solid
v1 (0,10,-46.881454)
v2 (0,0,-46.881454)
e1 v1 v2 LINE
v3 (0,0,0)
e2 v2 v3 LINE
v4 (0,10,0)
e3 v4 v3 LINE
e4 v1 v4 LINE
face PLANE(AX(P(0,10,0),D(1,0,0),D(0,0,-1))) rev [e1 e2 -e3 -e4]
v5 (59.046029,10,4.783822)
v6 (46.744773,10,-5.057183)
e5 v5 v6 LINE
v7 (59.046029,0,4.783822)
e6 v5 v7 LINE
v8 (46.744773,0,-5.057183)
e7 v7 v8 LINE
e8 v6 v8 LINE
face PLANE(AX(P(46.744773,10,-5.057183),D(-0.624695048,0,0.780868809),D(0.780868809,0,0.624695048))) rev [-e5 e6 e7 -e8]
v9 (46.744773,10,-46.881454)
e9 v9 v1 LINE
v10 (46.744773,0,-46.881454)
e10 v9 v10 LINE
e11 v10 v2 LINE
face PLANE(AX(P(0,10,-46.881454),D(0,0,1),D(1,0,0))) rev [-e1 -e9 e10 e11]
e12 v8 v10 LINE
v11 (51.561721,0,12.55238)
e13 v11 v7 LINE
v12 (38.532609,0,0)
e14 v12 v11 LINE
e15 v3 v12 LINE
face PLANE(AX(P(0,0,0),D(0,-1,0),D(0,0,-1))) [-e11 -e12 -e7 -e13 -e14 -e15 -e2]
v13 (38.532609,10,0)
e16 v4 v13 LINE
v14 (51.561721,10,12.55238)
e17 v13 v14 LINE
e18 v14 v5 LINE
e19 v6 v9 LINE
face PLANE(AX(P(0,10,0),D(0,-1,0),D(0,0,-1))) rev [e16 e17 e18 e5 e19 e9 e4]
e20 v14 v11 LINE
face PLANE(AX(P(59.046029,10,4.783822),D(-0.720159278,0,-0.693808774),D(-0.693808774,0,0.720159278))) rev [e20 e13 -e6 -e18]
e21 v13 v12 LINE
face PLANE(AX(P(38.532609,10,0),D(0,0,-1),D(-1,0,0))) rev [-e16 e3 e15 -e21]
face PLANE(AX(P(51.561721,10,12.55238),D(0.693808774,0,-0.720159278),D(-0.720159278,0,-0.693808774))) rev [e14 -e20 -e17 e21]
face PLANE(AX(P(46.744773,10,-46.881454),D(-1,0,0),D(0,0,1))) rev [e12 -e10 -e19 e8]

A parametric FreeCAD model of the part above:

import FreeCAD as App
import Part
import Sketcher

V = App.Vector


def add_polygon(sketch, points):
    """Adds a closed chain of lines whose ends are joined by coincident constraints."""
    first, n = sketch.GeometryCount, len(points)
    for a, b in zip(points, points[1:] + points[:1]):
        sketch.addGeometry(Part.LineSegment(App.Vector(*a, 0), App.Vector(*b, 0)), False)
    for i in range(n):
        sketch.addConstraint(Sketcher.Constraint("Coincident", first + i, 2, first + (i + 1) % n, 1))

doc = App.newDocument("Part")
body = doc.addObject("PartDesign::Body", "Body")

# Sketch on XZ plane
sketch1 = doc.addObject("Sketcher::SketchObject", "Sketch")
body.addObject(sketch1)
sketch1.AttachmentSupport = (doc.XZ_Plane, [""])
sketch1.MapMode = "FlatFace"
add_polygon(sketch1, [(0, -47), (0, 0), (39, 0), (52, 13), (59, 5), (47, -5), (47, -47)])  # lines 0-6
sketch1.addConstraint(Sketcher.Constraint("Vertical", 0))
sketch1.addConstraint(Sketcher.Constraint("Horizontal", 1))
sketch1.addConstraint(Sketcher.Constraint("Vertical", 5))
sketch1.addConstraint(Sketcher.Constraint("Horizontal", 6))
sketch1.addConstraint(Sketcher.Constraint("Coincident", 0, 2, -1, 1))
sketch1.addConstraint(Sketcher.Constraint("Perpendicular", 2, 3))
sketch1.addConstraint(Sketcher.Constraint("DistanceX", 1, 1, 1, 2, 38.532609))
sketch1.addConstraint(Sketcher.Constraint("DistanceY", 5, 2, 5, 1, 41.824271))
sketch1.addConstraint(Sketcher.Constraint("DistanceX", 6, 2, 6, 1, 46.744773))
sketch1.addConstraint(Sketcher.Constraint("DistanceY", 0, 1, 0, 2, 46.881454))
sketch1.addConstraint(Sketcher.Constraint("DistanceX", -1, 1, 2, 2, 51.561721))
sketch1.addConstraint(Sketcher.Constraint("DistanceY", -1, 1, 2, 2, 12.55238))
sketch1.addConstraint(Sketcher.Constraint("DistanceX", -1, 1, 3, 2, 59.046029))
pad1 = doc.addObject("PartDesign::Pad", "Pad")
body.addObject(pad1)
pad1.Profile = sketch1
pad1.Length = 10
pad1.Reversed = True

doc.recompute()
